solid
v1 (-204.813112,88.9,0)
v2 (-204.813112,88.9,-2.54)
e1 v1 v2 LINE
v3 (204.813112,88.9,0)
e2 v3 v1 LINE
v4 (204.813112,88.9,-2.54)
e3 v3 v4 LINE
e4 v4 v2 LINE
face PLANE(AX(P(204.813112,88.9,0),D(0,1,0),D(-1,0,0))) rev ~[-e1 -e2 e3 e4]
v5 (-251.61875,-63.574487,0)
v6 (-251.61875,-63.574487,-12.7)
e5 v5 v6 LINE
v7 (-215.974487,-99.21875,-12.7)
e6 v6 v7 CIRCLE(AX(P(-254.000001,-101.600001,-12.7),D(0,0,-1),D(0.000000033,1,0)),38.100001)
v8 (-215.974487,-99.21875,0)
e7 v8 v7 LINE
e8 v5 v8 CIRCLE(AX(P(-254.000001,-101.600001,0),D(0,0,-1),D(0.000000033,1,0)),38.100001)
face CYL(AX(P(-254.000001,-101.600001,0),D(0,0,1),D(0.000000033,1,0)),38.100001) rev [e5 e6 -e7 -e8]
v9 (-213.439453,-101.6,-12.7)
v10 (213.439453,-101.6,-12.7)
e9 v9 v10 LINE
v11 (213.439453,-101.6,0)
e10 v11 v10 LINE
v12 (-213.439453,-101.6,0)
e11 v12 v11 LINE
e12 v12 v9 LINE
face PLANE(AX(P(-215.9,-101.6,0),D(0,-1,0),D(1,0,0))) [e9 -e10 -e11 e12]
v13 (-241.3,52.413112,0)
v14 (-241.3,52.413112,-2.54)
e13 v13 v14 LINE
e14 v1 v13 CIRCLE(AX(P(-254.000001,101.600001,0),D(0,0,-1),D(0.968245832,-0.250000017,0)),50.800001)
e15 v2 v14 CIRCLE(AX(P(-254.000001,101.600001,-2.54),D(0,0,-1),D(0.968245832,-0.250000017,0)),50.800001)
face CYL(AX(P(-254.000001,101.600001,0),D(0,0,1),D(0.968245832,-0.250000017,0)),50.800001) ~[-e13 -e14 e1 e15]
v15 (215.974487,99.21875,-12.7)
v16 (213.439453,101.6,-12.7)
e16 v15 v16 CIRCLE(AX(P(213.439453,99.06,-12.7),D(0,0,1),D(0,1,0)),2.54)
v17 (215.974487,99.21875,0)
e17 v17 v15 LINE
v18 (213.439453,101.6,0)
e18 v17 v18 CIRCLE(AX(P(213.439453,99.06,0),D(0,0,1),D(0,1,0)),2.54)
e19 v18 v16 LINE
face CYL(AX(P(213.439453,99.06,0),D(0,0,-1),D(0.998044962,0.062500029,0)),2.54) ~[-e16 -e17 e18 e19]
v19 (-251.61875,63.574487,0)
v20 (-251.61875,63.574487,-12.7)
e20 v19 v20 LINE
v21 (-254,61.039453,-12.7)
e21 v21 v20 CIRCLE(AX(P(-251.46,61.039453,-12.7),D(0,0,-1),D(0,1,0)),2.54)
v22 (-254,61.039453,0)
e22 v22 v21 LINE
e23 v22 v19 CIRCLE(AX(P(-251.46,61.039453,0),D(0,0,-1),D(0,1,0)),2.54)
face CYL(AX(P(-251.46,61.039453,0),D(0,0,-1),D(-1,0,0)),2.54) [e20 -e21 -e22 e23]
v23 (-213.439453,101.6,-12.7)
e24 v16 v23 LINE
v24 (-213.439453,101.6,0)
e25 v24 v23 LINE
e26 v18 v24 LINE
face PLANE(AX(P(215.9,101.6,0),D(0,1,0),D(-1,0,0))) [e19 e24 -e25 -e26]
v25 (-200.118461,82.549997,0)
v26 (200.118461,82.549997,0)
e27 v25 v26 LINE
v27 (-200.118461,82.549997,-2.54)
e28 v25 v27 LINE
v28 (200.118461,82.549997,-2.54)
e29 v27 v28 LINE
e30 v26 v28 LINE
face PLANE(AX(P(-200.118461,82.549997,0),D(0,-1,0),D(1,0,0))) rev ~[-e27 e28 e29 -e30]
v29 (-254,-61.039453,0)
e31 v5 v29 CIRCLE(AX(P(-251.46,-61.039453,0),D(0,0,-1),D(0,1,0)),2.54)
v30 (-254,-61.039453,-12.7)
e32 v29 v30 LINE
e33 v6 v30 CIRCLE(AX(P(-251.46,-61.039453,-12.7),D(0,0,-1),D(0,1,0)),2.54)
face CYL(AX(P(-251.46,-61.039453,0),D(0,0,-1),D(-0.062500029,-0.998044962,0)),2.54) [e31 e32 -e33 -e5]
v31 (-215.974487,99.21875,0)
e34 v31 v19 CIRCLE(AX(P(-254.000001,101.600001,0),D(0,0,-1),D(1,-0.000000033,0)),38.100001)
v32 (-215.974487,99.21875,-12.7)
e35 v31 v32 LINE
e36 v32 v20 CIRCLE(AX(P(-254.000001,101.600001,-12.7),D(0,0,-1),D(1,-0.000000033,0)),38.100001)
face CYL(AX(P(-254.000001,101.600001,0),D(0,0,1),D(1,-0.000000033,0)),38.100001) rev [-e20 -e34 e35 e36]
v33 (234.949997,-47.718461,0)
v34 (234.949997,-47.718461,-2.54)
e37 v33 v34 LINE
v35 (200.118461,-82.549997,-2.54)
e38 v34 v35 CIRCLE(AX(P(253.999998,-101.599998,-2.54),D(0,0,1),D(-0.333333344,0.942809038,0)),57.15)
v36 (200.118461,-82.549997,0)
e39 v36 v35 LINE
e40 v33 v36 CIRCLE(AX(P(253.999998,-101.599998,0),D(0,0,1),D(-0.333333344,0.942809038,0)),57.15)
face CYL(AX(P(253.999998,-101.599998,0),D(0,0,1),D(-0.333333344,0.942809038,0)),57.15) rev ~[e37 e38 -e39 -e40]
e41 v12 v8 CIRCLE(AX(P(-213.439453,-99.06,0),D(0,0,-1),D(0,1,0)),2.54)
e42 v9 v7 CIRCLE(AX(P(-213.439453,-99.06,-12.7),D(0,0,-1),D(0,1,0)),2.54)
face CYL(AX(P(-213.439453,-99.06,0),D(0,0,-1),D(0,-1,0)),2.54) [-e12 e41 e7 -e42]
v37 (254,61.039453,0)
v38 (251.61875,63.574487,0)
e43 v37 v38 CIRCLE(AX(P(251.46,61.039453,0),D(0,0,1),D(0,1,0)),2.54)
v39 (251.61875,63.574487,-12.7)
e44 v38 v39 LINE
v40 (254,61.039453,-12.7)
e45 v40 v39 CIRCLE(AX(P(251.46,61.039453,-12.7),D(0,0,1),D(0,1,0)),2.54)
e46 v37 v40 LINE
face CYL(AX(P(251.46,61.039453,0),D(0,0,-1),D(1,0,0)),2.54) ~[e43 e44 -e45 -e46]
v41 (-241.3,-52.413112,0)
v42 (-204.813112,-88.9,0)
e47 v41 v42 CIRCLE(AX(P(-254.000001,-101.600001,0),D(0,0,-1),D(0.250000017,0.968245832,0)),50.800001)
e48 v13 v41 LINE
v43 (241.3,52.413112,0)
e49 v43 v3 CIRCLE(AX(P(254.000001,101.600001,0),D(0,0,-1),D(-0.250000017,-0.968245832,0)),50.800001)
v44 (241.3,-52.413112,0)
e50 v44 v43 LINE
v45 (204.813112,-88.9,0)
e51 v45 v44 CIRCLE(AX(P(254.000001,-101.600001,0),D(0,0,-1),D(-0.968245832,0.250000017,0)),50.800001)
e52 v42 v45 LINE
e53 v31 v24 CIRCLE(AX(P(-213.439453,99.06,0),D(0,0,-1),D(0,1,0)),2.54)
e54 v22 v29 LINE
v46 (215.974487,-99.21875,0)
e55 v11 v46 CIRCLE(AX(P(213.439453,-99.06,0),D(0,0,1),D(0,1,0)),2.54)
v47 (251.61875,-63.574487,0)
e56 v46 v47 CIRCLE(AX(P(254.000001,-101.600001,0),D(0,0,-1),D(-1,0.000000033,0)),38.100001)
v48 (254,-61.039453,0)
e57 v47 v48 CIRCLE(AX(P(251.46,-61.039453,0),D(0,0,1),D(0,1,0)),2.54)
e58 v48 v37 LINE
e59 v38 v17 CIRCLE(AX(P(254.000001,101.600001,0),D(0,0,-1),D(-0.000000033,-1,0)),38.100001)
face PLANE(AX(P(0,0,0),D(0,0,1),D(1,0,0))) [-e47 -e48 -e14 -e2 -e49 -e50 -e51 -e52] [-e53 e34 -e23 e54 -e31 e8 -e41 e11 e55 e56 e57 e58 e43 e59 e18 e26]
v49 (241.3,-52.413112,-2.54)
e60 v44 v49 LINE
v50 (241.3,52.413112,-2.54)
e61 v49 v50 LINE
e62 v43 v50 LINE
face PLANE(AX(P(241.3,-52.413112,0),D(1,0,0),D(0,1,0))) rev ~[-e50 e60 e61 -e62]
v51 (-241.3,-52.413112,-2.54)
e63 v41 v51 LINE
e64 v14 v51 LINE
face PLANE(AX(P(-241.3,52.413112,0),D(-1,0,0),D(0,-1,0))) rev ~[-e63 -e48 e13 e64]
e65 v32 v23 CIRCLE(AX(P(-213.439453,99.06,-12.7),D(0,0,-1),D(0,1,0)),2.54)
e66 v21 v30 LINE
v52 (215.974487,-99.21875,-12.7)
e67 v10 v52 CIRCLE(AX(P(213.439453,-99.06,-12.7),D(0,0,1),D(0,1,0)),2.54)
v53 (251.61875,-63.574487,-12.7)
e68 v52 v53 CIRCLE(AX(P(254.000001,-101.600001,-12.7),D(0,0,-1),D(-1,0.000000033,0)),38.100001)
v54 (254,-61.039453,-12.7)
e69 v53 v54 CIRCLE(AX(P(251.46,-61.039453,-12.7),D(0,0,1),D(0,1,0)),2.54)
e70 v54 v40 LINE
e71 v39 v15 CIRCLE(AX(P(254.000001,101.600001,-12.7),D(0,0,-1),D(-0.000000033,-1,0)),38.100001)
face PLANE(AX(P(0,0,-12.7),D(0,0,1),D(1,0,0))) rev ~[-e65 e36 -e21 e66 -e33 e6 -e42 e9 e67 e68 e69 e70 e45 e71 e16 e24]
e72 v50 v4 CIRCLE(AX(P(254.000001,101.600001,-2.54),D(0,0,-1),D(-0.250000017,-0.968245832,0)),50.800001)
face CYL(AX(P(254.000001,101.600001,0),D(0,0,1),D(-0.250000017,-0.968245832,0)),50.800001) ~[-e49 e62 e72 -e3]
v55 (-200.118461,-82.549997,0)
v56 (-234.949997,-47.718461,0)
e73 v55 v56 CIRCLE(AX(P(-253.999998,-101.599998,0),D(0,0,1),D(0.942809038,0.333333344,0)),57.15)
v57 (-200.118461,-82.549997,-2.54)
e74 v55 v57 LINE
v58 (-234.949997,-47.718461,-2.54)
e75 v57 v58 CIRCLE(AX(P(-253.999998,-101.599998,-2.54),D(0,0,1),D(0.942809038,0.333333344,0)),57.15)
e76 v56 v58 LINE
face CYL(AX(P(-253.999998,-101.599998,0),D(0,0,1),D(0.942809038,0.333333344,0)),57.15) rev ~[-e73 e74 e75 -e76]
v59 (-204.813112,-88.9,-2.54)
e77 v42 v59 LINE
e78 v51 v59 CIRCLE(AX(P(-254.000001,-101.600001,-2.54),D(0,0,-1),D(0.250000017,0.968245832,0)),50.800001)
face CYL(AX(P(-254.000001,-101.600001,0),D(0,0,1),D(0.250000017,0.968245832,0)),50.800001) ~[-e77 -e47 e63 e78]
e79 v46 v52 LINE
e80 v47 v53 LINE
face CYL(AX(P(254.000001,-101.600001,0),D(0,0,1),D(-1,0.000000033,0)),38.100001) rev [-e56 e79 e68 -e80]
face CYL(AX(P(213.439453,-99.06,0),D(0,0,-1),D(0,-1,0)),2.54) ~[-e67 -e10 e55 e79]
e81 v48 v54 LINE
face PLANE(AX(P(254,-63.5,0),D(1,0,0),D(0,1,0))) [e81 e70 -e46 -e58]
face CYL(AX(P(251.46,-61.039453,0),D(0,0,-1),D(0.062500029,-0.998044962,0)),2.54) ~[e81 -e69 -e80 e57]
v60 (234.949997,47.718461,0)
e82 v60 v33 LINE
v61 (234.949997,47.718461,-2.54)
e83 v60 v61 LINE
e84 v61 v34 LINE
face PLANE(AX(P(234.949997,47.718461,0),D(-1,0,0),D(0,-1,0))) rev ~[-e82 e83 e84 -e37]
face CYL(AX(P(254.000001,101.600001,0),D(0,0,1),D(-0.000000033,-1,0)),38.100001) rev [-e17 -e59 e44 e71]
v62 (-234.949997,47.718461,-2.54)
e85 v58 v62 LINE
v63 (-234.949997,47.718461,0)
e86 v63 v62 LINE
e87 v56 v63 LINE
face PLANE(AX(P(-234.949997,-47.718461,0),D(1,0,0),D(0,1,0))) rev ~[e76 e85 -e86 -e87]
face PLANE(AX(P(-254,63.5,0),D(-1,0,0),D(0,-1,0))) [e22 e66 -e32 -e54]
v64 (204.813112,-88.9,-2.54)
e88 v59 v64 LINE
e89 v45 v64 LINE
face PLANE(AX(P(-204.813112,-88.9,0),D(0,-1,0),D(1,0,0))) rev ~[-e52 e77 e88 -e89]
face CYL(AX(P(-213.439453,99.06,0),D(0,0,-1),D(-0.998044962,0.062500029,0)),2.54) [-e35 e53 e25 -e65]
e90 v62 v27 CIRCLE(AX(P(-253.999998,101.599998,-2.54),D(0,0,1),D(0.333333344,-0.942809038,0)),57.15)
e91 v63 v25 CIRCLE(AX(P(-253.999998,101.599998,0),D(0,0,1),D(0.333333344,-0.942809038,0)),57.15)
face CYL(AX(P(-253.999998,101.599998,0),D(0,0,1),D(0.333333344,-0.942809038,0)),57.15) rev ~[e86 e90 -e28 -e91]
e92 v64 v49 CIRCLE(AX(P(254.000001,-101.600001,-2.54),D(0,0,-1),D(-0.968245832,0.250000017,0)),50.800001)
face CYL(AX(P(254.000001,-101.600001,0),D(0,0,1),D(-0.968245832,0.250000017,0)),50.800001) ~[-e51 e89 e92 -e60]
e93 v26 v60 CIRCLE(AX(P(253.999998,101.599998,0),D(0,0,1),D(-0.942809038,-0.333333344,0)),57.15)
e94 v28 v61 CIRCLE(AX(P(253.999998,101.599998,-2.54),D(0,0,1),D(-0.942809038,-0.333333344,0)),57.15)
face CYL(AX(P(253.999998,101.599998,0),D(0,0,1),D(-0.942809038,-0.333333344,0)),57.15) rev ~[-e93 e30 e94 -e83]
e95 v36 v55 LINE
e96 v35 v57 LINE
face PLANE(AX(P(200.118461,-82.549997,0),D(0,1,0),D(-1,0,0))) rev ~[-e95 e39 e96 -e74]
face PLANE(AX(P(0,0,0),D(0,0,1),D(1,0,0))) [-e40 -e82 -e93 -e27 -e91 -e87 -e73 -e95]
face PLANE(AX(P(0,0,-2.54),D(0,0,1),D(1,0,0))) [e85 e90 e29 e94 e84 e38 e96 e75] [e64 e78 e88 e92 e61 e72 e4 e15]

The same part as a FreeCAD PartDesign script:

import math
import FreeCAD as App
import Part
import Sketcher
from FreeCAD import Vector
Q = App.Units.Quantity


def edges_at(feature, points):
    """Names of the edges that pass closest to the given points."""
    edges = feature.Shape.Edges
    near = lambda p: min(range(len(edges)), key=lambda i: edges[i].distToShape(Part.Vertex(*p))[0])
    return sorted({f"Edge{near(p) + 1}" for p in points})

doc = App.newDocument("Part")
body = doc.addObject("PartDesign::Body", "Body")

# Sketch on XY plane
sketch1 = doc.addObject("Sketcher::SketchObject", "Sketch")
body.addObject(sketch1)
sketch1.AttachmentSupport = (doc.XY_Plane, [""])
sketch1.MapMode = "FlatFace"
sketch1.addGeometry([
    Part.LineSegment(Vector(-216, -102, 0), Vector(216, -102, 0)),  # 0
    Part.ArcOfCircle(Part.Circle(Vector(254, -102, 0), Vector(0, 0, 1), 38), math.radians(90), math.radians(180)),  # 1
    Part.LineSegment(Vector(254, -64, 0), Vector(254, 64, 0)),  # 2
    Part.ArcOfCircle(Part.Circle(Vector(254, 102, 0), Vector(0, 0, 1), 38), math.radians(-180), math.radians(-90)),  # 3
    Part.LineSegment(Vector(216, 102, 0), Vector(-216, 102, 0)),  # 4
    Part.ArcOfCircle(Part.Circle(Vector(-254, 102, 0), Vector(0, 0, 1), 38), math.radians(-90), math.radians(0)),  # 5
    Part.LineSegment(Vector(-254, 64, 0), Vector(-254, -64, 0)),  # 6
    Part.ArcOfCircle(Part.Circle(Vector(-254, -102, 0), Vector(0, 0, 1), 38), math.radians(0), math.radians(90)),  # 7
], False)
sketch1.addConstraint([
    Sketcher.Constraint("Coincident", 0, 2, 1, 2),
    Sketcher.Constraint("Coincident", 1, 1, 2, 1),
    Sketcher.Constraint("Coincident", 2, 2, 3, 2),
    Sketcher.Constraint("Coincident", 3, 1, 4, 1),
    Sketcher.Constraint("Coincident", 4, 2, 5, 2),
    Sketcher.Constraint("Coincident", 5, 1, 6, 1),
    Sketcher.Constraint("Coincident", 6, 2, 7, 2),
    Sketcher.Constraint("Coincident", 7, 1, 0, 1),
    Sketcher.Constraint("Horizontal", 0),
    Sketcher.Constraint("Vertical", 2),
    Sketcher.Constraint("Horizontal", 4),
    Sketcher.Constraint("Vertical", 6),
    Sketcher.Constraint("Equal", 1, 3),
    Sketcher.Constraint("Equal", 3, 5),
    Sketcher.Constraint("Equal", 5, 7),
    Sketcher.Constraint("Symmetric", 1, 3, 5, 3, -1, 1),
    Sketcher.Constraint("Symmetric", 3, 3, 7, 3, -1, 1),
    Sketcher.Constraint("Symmetric", 3, 3, 5, 3, -2),
    Sketcher.Constraint("Horizontal", 7, 3, 0, 2),
    Sketcher.Constraint("Horizontal", 5, 3, 3, 1),
    Sketcher.Constraint("Vertical", 3, 3, 1, 1),
    Sketcher.Constraint("Vertical", 7, 3, 5, 1),
    Sketcher.Constraint("Radius", 1, Q("1.5 in")),
    Sketcher.Constraint("DistanceX", 0, 1, 0, 2, Q("17 in")),
    Sketcher.Constraint("DistanceY", 2, 1, 2, 2, Q("5 in")),
])
pad1 = doc.addObject("PartDesign::Pad", "Pad")
body.addObject(pad1)
pad1.Profile = sketch1
pad1.Length = Q("0.5 in")
pad1.Reversed = True

# Sketch on XY plane
sketch2 = doc.addObject("Sketcher::SketchObject", "Sketch001")
body.addObject(sketch2)
sketch2.AttachmentSupport = (doc.XY_Plane, [""])
sketch2.MapMode = "FlatFace"
sketch2.addGeometry([
    Part.ArcOfCircle(Part.Circle(Vector(254, 102, 0), Vector(0, 0, 1), 51), math.radians(-166), math.radians(-104)),  # 0
    Part.LineSegment(Vector(205, 89, 0), Vector(-205, 89, 0)),  # 1
    Part.ArcOfCircle(Part.Circle(Vector(-254, 102, 0), Vector(0, 0, 1), 51), math.radians(-76), math.radians(-14)),  # 2
    Part.LineSegment(Vector(-241, 52, 0), Vector(-241, -52, 0)),  # 3
    Part.ArcOfCircle(Part.Circle(Vector(-254, -102, 0), Vector(0, 0, 1), 51), math.radians(14), math.radians(76)),  # 4
    Part.LineSegment(Vector(-205, -89, 0), Vector(205, -89, 0)),  # 5
    Part.ArcOfCircle(Part.Circle(Vector(254, -102, 0), Vector(0, 0, 1), 51), math.radians(104), math.radians(166)),  # 6
    Part.LineSegment(Vector(241, -52, 0), Vector(241, 52, 0)),  # 7
    Part.ArcOfCircle(Part.Circle(Vector(-254, 102, 0), Vector(0, 0, 1), 57), math.radians(-71), math.radians(-19)),  # 8
    Part.LineSegment(Vector(-200, 83, 0), Vector(200, 83, 0)),  # 9
    Part.ArcOfCircle(Part.Circle(Vector(254, 102, 0), Vector(0, 0, 1), 57), math.radians(-161), math.radians(-109)),  # 10
    Part.LineSegment(Vector(235, 48, 0), Vector(235, -48, 0)),  # 11
    Part.ArcOfCircle(Part.Circle(Vector(254, -102, 0), Vector(0, 0, 1), 57), math.radians(109), math.radians(161)),  # 12
    Part.LineSegment(Vector(200, -83, 0), Vector(-200, -83, 0)),  # 13
    Part.ArcOfCircle(Part.Circle(Vector(-254, -102, 0), Vector(0, 0, 1), 57), math.radians(19), math.radians(71)),  # 14
    Part.LineSegment(Vector(-235, -48, 0), Vector(-235, 48, 0)),  # 15
], False)
sketch2.addConstraint([
    Sketcher.Constraint("Coincident", 0, 1, 1, 1),
    Sketcher.Constraint("Coincident", 1, 2, 2, 2),
    Sketcher.Constraint("Coincident", 2, 1, 3, 1),
    Sketcher.Constraint("Coincident", 3, 2, 4, 2),
    Sketcher.Constraint("Coincident", 4, 1, 5, 1),
    Sketcher.Constraint("Coincident", 5, 2, 6, 2),
    Sketcher.Constraint("Coincident", 6, 1, 7, 1),
    Sketcher.Constraint("Coincident", 7, 2, 0, 2),
    Sketcher.Constraint("Coincident", 8, 2, 9, 1),
    Sketcher.Constraint("Coincident", 9, 2, 10, 1),
    Sketcher.Constraint("Coincident", 10, 2, 11, 1),
    Sketcher.Constraint("Coincident", 11, 2, 12, 1),
    Sketcher.Constraint("Coincident", 12, 2, 13, 1),
    Sketcher.Constraint("Coincident", 13, 2, 14, 1),
    Sketcher.Constraint("Coincident", 14, 2, 15, 1),
    Sketcher.Constraint("Coincident", 15, 2, 8, 1),
    Sketcher.Constraint("Horizontal", 1),
    Sketcher.Constraint("Vertical", 3),
    Sketcher.Constraint("Horizontal", 5),
    Sketcher.Constraint("Vertical", 7),
    Sketcher.Constraint("Horizontal", 9),
    Sketcher.Constraint("Vertical", 11),
    Sketcher.Constraint("Horizontal", 13),
    Sketcher.Constraint("Vertical", 15),
    Sketcher.Constraint("Coincident", 8, 3, 2, 3),
    Sketcher.Constraint("Coincident", 10, 3, 0, 3),
    Sketcher.Constraint("Coincident", 12, 3, 6, 3),
    Sketcher.Constraint("Coincident", 14, 3, 4, 3),
    Sketcher.Constraint("Equal", 0, 2),
    Sketcher.Constraint("Equal", 2, 4),
    Sketcher.Constraint("Equal", 4, 6),
    Sketcher.Constraint("Equal", 8, 10),
    Sketcher.Constraint("Equal", 10, 12),
    Sketcher.Constraint("Equal", 12, 14),
    Sketcher.Constraint("Symmetric", 0, 3, 4, 3, -1, 1),
    Sketcher.Constraint("Symmetric", 2, 3, 6, 3, -1, 1),
    Sketcher.Constraint("Symmetric", 0, 3, 2, 3, -2),
    Sketcher.Constraint("Horizontal", 3, 2, 6, 1),
    Sketcher.Constraint("Horizontal", 11, 2, 14, 2),
    Sketcher.Constraint("Vertical", 1, 2, 4, 1),
    Sketcher.Constraint("Vertical", 9, 2, 12, 2),
    Sketcher.Constraint("Radius", 0, Q("2 in")),
    Sketcher.Constraint("Radius", 8, Q("2.25 in")),
    Sketcher.Constraint("DistanceX", -1, 1, 0, 3, Q("10 in")),
    Sketcher.Constraint("DistanceY", -1, 1, 0, 3, Q("4 in")),
    Sketcher.Constraint("DistanceY", 4, 1, 1, 2, Q("7 in")),
    Sketcher.Constraint("DistanceX", 2, 1, -1, 1, Q("9.5 in")),
    Sketcher.Constraint("DistanceY", -1, 1, 8, 2, Q("3.2499999 in")),
    Sketcher.Constraint("DistanceX", -1, 1, 10, 2, Q("9.2499999 in")),
])
pocket1 = doc.addObject("PartDesign::Pocket", "Pocket")
body.addObject(pocket1)
pocket1.Profile = sketch2
pocket1.Length = Q("0.1 in")
doc.recompute()

fillet = doc.addObject("PartDesign::Fillet", "Fillet")
body.addObject(fillet)
fillet.Base = (pocket1, edges_at(pocket1, [
    (-254, 63.5, -6.35),
    (-215.9, 101.6, -6.35),
    (254, 63.5, -6.35),
    (215.9, 101.6, -6.35),
    (254, -63.5, -6.35),
    (215.9, -101.6, -6.35),
    (-215.9, -101.6, -6.35),
    (-254, -63.5, -6.35),
]))
fillet.Radius = Q("0.1 in")

doc.recompute()
